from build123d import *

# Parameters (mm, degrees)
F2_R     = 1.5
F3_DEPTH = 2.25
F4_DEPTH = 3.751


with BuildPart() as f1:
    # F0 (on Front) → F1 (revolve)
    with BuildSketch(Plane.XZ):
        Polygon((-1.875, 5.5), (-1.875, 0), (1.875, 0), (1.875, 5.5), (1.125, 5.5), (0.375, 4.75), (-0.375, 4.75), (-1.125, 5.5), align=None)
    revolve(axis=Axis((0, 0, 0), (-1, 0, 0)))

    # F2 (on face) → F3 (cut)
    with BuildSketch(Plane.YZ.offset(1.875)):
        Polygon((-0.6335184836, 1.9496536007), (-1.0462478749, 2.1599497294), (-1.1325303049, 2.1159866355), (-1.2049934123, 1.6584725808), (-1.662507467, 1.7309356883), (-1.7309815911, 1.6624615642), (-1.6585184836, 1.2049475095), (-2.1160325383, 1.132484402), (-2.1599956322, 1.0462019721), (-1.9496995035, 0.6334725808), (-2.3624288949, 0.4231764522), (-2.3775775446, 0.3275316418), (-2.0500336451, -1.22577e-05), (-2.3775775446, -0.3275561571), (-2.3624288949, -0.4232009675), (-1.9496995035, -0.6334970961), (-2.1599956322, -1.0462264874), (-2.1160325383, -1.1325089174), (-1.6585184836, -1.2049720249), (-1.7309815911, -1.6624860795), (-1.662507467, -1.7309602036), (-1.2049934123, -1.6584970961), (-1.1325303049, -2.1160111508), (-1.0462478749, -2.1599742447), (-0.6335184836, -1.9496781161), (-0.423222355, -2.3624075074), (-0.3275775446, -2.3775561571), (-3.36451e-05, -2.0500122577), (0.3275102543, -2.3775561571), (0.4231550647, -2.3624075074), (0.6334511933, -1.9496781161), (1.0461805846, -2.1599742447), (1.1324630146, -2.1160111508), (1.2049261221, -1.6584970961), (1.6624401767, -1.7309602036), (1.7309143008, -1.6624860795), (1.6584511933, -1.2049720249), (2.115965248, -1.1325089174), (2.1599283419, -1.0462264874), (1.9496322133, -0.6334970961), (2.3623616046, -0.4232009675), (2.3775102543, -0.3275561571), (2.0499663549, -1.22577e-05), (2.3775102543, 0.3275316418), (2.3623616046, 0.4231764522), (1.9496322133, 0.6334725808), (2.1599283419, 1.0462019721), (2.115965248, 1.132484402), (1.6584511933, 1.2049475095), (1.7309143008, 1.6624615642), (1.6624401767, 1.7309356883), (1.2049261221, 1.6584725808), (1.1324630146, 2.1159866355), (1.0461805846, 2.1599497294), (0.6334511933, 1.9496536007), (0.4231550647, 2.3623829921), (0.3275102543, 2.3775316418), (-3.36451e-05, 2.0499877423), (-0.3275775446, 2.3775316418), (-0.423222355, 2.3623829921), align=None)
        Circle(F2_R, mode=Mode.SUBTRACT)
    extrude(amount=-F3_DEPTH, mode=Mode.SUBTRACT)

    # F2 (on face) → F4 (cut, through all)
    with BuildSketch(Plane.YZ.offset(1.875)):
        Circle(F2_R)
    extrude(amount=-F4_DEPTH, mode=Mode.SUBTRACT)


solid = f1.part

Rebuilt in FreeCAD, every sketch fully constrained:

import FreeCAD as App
import Part
import Sketcher
Q = App.Units.Quantity

doc = App.newDocument("Part")
params = doc.addObject("Spreadsheet::Sheet", "Params")
for row, (alias, value) in enumerate([
    ("sketch1_height", "5.5 mm"),
    ("sketch1_width", "3.75 mm"),
    ("revolution_angle", "360 deg"),
    ("sketch2_diameter", "3 mm"),
    ("pocket1_length", "2.25 mm"),
    ("sketch3_diameter", "3 mm"),
], start=1):
    params.set(f"A{row}", alias)
    params.set(f"B{row}", "=" + value)
    params.setAlias(f"B{row}", alias)

body = doc.addObject("PartDesign::Body", "Body")

sketch1 = body.newObject("Sketcher::SketchObject", "Sketch")
sketch1.AttachmentSupport = (doc.getObject("XZ_Plane"), [""])
sketch1.MapMode = "FlatFace"
sketch1.addGeometry([
    Part.LineSegment(App.Vector(-1.9, 5.5, 0), App.Vector(-1.9, 0, 0)),
    Part.LineSegment(App.Vector(-1.9, 0, 0), App.Vector(1.9, 0, 0)),
    Part.LineSegment(App.Vector(1.9, 0, 0), App.Vector(1.9, 5.5, 0)),
    Part.LineSegment(App.Vector(1.9, 5.5, 0), App.Vector(1.1, 5.5, 0)),
    Part.LineSegment(App.Vector(1.1, 5.5, 0), App.Vector(0.4, 4.8, 0)),
    Part.LineSegment(App.Vector(0.4, 4.8, 0), App.Vector(-0.4, 4.8, 0)),
    Part.LineSegment(App.Vector(-0.4, 4.8, 0), App.Vector(-1.1, 5.5, 0)),
    Part.LineSegment(App.Vector(-1.1, 5.5, 0), App.Vector(-1.9, 5.5, 0)),
], False)
sketch1.addConstraint([
    Sketcher.Constraint("Coincident", 0, 2, 1, 1),
    Sketcher.Constraint("Coincident", 1, 2, 2, 1),
    Sketcher.Constraint("Coincident", 2, 2, 3, 1),
    Sketcher.Constraint("Coincident", 3, 2, 4, 1),
    Sketcher.Constraint("Coincident", 4, 2, 5, 1),
    Sketcher.Constraint("Coincident", 5, 2, 6, 1),
    Sketcher.Constraint("Coincident", 6, 2, 7, 1),
    Sketcher.Constraint("Coincident", 7, 2, 0, 1),
    Sketcher.Constraint("Vertical", 0),
    Sketcher.Constraint("Horizontal", 1),
    Sketcher.Constraint("Vertical", 2),
    Sketcher.Constraint("Horizontal", 3),
    Sketcher.Constraint("Horizontal", 5),
    Sketcher.Constraint("Horizontal", 7),
    Sketcher.Constraint("Symmetric", 0, 2, 1, 2, -1, 1),
    Sketcher.Constraint("Symmetric", 3, 2, 6, 2, -2),
    Sketcher.Constraint("Perpendicular", 4, 6),
    Sketcher.Constraint("Equal", 3, 5),
    Sketcher.Constraint("Equal", 4, 6),
    Sketcher.Constraint("DistanceY", 0, 2, 0, 1, 5.5),
    Sketcher.Constraint("DistanceX", 0, 2, 3, 2, 3.0),
    Sketcher.Constraint("DistanceX", 1, 1, 1, 2, 3.75),
])
sketch1.setExpression("Constraints[19]", "Params.sketch1_height")
sketch1.setExpression("Constraints[21]", "Params.sketch1_width")
revolution = body.newObject("PartDesign::Revolution", "Revolution")
revolution.Profile = sketch1
revolution.ReferenceAxis = (sketch1, ["H_Axis"])
revolution.setExpression("Angle", "Params.revolution_angle")

sketch2 = body.newObject("Sketcher::SketchObject", "Sketch001")
sketch2.AttachmentSupport = (doc.getObject("YZ_Plane"), [""])
sketch2.MapMode = "FlatFace"
sketch2.AttachmentOffset = App.Placement(App.Vector(0, 0, 1.875), App.Rotation())
sketch2.addGeometry([
    Part.LineSegment(App.Vector(-0.63, 1.95, 0), App.Vector(-1.05, 2.16, 0)),
    Part.LineSegment(App.Vector(-1.05, 2.16, 0), App.Vector(-1.13, 2.12, 0)),
    Part.LineSegment(App.Vector(-1.13, 2.12, 0), App.Vector(-1.2, 1.66, 0)),
    Part.LineSegment(App.Vector(-1.2, 1.66, 0), App.Vector(-1.66, 1.73, 0)),
    Part.LineSegment(App.Vector(-1.66, 1.73, 0), App.Vector(-1.73, 1.66, 0)),
    Part.LineSegment(App.Vector(-1.73, 1.66, 0), App.Vector(-1.66, 1.2, 0)),
    Part.LineSegment(App.Vector(-1.66, 1.2, 0), App.Vector(-2.12, 1.13, 0)),
    Part.LineSegment(App.Vector(-2.12, 1.13, 0), App.Vector(-2.16, 1.05, 0)),
    Part.LineSegment(App.Vector(-2.16, 1.05, 0), App.Vector(-1.95, 0.63, 0)),
    Part.LineSegment(App.Vector(-1.95, 0.63, 0), App.Vector(-2.36, 0.42, 0)),
    Part.LineSegment(App.Vector(-2.36, 0.42, 0), App.Vector(-2.38, 0.33, 0)),
    Part.LineSegment(App.Vector(-2.38, 0.33, 0), App.Vector(-2.05, 0, 0)),
    Part.LineSegment(App.Vector(-2.05, 0, 0), App.Vector(-2.38, -0.33, 0)),
    Part.LineSegment(App.Vector(-2.38, -0.33, 0), App.Vector(-2.36, -0.42, 0)),
    Part.LineSegment(App.Vector(-2.36, -0.42, 0), App.Vector(-1.95, -0.63, 0)),
    Part.LineSegment(App.Vector(-1.95, -0.63, 0), App.Vector(-2.16, -1.05, 0)),
    Part.LineSegment(App.Vector(-2.16, -1.05, 0), App.Vector(-2.12, -1.13, 0)),
    Part.LineSegment(App.Vector(-2.12, -1.13, 0), App.Vector(-1.66, -1.2, 0)),
    Part.LineSegment(App.Vector(-1.66, -1.2, 0), App.Vector(-1.73, -1.66, 0)),
    Part.LineSegment(App.Vector(-1.73, -1.66, 0), App.Vector(-1.66, -1.73, 0)),
    Part.LineSegment(App.Vector(-1.66, -1.73, 0), App.Vector(-1.2, -1.66, 0)),
    Part.LineSegment(App.Vector(-1.2, -1.66, 0), App.Vector(-1.13, -2.12, 0)),
    Part.LineSegment(App.Vector(-1.13, -2.12, 0), App.Vector(-1.05, -2.16, 0)),
    Part.LineSegment(App.Vector(-1.05, -2.16, 0), App.Vector(-0.63, -1.95, 0)),
    Part.LineSegment(App.Vector(-0.63, -1.95, 0), App.Vector(-0.42, -2.36, 0)),
    Part.LineSegment(App.Vector(-0.42, -2.36, 0), App.Vector(-0.33, -2.38, 0)),
    Part.LineSegment(App.Vector(-0.33, -2.38, 0), App.Vector(0, -2.05, 0)),
    Part.LineSegment(App.Vector(0, -2.05, 0), App.Vector(0.33, -2.38, 0)),
    Part.LineSegment(App.Vector(0.33, -2.38, 0), App.Vector(0.42, -2.36, 0)),
    Part.LineSegment(App.Vector(0.42, -2.36, 0), App.Vector(0.63, -1.95, 0)),
    Part.LineSegment(App.Vector(0.63, -1.95, 0), App.Vector(1.05, -2.16, 0)),
    Part.LineSegment(App.Vector(1.05, -2.16, 0), App.Vector(1.13, -2.12, 0)),
    Part.LineSegment(App.Vector(1.13, -2.12, 0), App.Vector(1.2, -1.66, 0)),
    Part.LineSegment(App.Vector(1.2, -1.66, 0), App.Vector(1.66, -1.73, 0)),
    Part.LineSegment(App.Vector(1.66, -1.73, 0), App.Vector(1.73, -1.66, 0)),
    Part.LineSegment(App.Vector(1.73, -1.66, 0), App.Vector(1.66, -1.2, 0)),
    Part.LineSegment(App.Vector(1.66, -1.2, 0), App.Vector(2.12, -1.13, 0)),
    Part.LineSegment(App.Vector(2.12, -1.13, 0), App.Vector(2.16, -1.05, 0)),
    Part.LineSegment(App.Vector(2.16, -1.05, 0), App.Vector(1.95, -0.63, 0)),
    Part.LineSegment(App.Vector(1.95, -0.63, 0), App.Vector(2.36, -0.42, 0)),
    Part.LineSegment(App.Vector(2.36, -0.42, 0), App.Vector(2.38, -0.33, 0)),
    Part.LineSegment(App.Vector(2.38, -0.33, 0), App.Vector(2.05, 0, 0)),
    Part.LineSegment(App.Vector(2.05, 0, 0), App.Vector(2.38, 0.33, 0)),
    Part.LineSegment(App.Vector(2.38, 0.33, 0), App.Vector(2.36, 0.42, 0)),
    Part.LineSegment(App.Vector(2.36, 0.42, 0), App.Vector(1.95, 0.63, 0)),
    Part.LineSegment(App.Vector(1.95, 0.63, 0), App.Vector(2.16, 1.05, 0)),
    Part.LineSegment(App.Vector(2.16, 1.05, 0), App.Vector(2.12, 1.13, 0)),
    Part.LineSegment(App.Vector(2.12, 1.13, 0), App.Vector(1.66, 1.2, 0)),
    Part.LineSegment(App.Vector(1.66, 1.2, 0), App.Vector(1.73, 1.66, 0)),
    Part.LineSegment(App.Vector(1.73, 1.66, 0), App.Vector(1.66, 1.73, 0)),
    Part.LineSegment(App.Vector(1.66, 1.73, 0), App.Vector(1.2, 1.66, 0)),
    Part.LineSegment(App.Vector(1.2, 1.66, 0), App.Vector(1.13, 2.12, 0)),
    Part.LineSegment(App.Vector(1.13, 2.12, 0), App.Vector(1.05, 2.16, 0)),
    Part.LineSegment(App.Vector(1.05, 2.16, 0), App.Vector(0.63, 1.95, 0)),
    Part.LineSegment(App.Vector(0.63, 1.95, 0), App.Vector(0.42, 2.36, 0)),
    Part.LineSegment(App.Vector(0.42, 2.36, 0), App.Vector(0.33, 2.38, 0)),
    Part.LineSegment(App.Vector(0.33, 2.38, 0), App.Vector(0, 2.05, 0)),
    Part.LineSegment(App.Vector(0, 2.05, 0), App.Vector(-0.33, 2.38, 0)),
    Part.LineSegment(App.Vector(-0.33, 2.38, 0), App.Vector(-0.42, 2.36, 0)),
    Part.LineSegment(App.Vector(-0.42, 2.36, 0), App.Vector(-0.63, 1.95, 0)),
    Part.Circle(App.Vector(0, 0, 0), App.Vector(0, 0, 1), 1.5),
], False)
sketch2.addConstraint([
    Sketcher.Constraint("Coincident", 0, 2, 1, 1),
    Sketcher.Constraint("Coincident", 1, 2, 2, 1),
    Sketcher.Constraint("Coincident", 2, 2, 3, 1),
    Sketcher.Constraint("Coincident", 3, 2, 4, 1),
    Sketcher.Constraint("Coincident", 4, 2, 5, 1),
    Sketcher.Constraint("Coincident", 5, 2, 6, 1),
    Sketcher.Constraint("Coincident", 6, 2, 7, 1),
    Sketcher.Constraint("Coincident", 7, 2, 8, 1),
    Sketcher.Constraint("Coincident", 8, 2, 9, 1),
    Sketcher.Constraint("Coincident", 9, 2, 10, 1),
    Sketcher.Constraint("Coincident", 10, 2, 11, 1),
    Sketcher.Constraint("Coincident", 11, 2, 12, 1),
    Sketcher.Constraint("Coincident", 12, 2, 13, 1),
    Sketcher.Constraint("Coincident", 13, 2, 14, 1),
    Sketcher.Constraint("Coincident", 14, 2, 15, 1),
    Sketcher.Constraint("Coincident", 15, 2, 16, 1),
    Sketcher.Constraint("Coincident", 16, 2, 17, 1),
    Sketcher.Constraint("Coincident", 17, 2, 18, 1),
    Sketcher.Constraint("Coincident", 18, 2, 19, 1),
    Sketcher.Constraint("Coincident", 19, 2, 20, 1),
    Sketcher.Constraint("Coincident", 20, 2, 21, 1),
    Sketcher.Constraint("Coincident", 21, 2, 22, 1),
    Sketcher.Constraint("Coincident", 22, 2, 23, 1),
    Sketcher.Constraint("Coincident", 23, 2, 24, 1),
    Sketcher.Constraint("Coincident", 24, 2, 25, 1),
    Sketcher.Constraint("Coincident", 25, 2, 26, 1),
    Sketcher.Constraint("Coincident", 26, 2, 27, 1),
    Sketcher.Constraint("Coincident", 27, 2, 28, 1),
    Sketcher.Constraint("Coincident", 28, 2, 29, 1),
    Sketcher.Constraint("Coincident", 29, 2, 30, 1),
    Sketcher.Constraint("Coincident", 30, 2, 31, 1),
    Sketcher.Constraint("Coincident", 31, 2, 32, 1),
    Sketcher.Constraint("Coincident", 32, 2, 33, 1),
    Sketcher.Constraint("Coincident", 33, 2, 34, 1),
    Sketcher.Constraint("Coincident", 34, 2, 35, 1),
    Sketcher.Constraint("Coincident", 35, 2, 36, 1),
    Sketcher.Constraint("Coincident", 36, 2, 37, 1),
    Sketcher.Constraint("Coincident", 37, 2, 38, 1),
    Sketcher.Constraint("Coincident", 38, 2, 39, 1),
    Sketcher.Constraint("Coincident", 39, 2, 40, 1),
    Sketcher.Constraint("Coincident", 40, 2, 41, 1),
    Sketcher.Constraint("Coincident", 41, 2, 42, 1),
    Sketcher.Constraint("Coincident", 42, 2, 43, 1),
    Sketcher.Constraint("Coincident", 43, 2, 44, 1),
    Sketcher.Constraint("Coincident", 44, 2, 45, 1),
    Sketcher.Constraint("Coincident", 45, 2, 46, 1),
    Sketcher.Constraint("Coincident", 46, 2, 47, 1),
    Sketcher.Constraint("Coincident", 47, 2, 48, 1),
    Sketcher.Constraint("Coincident", 48, 2, 49, 1),
    Sketcher.Constraint("Coincident", 49, 2, 50, 1),
    Sketcher.Constraint("Coincident", 50, 2, 51, 1),
    Sketcher.Constraint("Coincident", 51, 2, 52, 1),
    Sketcher.Constraint("Coincident", 52, 2, 53, 1),
    Sketcher.Constraint("Coincident", 53, 2, 54, 1),
    Sketcher.Constraint("Coincident", 54, 2, 55, 1),
    Sketcher.Constraint("Coincident", 55, 2, 56, 1),
    Sketcher.Constraint("Coincident", 56, 2, 57, 1),
    Sketcher.Constraint("Coincident", 57, 2, 58, 1),
    Sketcher.Constraint("Coincident", 58, 2, 59, 1),
    Sketcher.Constraint("Coincident", 59, 2, 0, 1),
    Sketcher.Constraint("Coincident", 60, 3, -1, 1),
    Sketcher.Constraint("Perpendicular", 2, 3),
    Sketcher.Constraint("Perpendicular", 5, 6),
    Sketcher.Constraint("Perpendicular", 0, 7),
    Sketcher.Constraint("Perpendicular", 1, 8),
    Sketcher.Constraint("Perpendicular", 8, 9),
    Sketcher.Constraint("Perpendicular", 3, 10),
    Sketcher.Constraint("Perpendicular", 4, 11),
    Sketcher.Constraint("Perpendicular", 11, 12),
    Sketcher.Constraint("Perpendicular", 6, 13),
    Sketcher.Constraint("Perpendicular", 7, 14),
    Sketcher.Constraint("Perpendicular", 14, 15),
    Sketcher.Constraint("Perpendicular", 9, 16),
    Sketcher.Constraint("Perpendicular", 10, 17),
    Sketcher.Constraint("Perpendicular", 17, 18),
    Sketcher.Constraint("Perpendicular", 12, 19),
    Sketcher.Constraint("Perpendicular", 13, 20),
    Sketcher.Constraint("Perpendicular", 20, 21),
    Sketcher.Constraint("Perpendicular", 15, 22),
    Sketcher.Constraint("Perpendicular", 16, 23),
    Sketcher.Constraint("Perpendicular", 23, 24),
    Sketcher.Constraint("Perpendicular", 18, 25),
    Sketcher.Constraint("Perpendicular", 19, 26),
    Sketcher.Constraint("Perpendicular", 26, 27),
    Sketcher.Constraint("Perpendicular", 21, 28),
    Sketcher.Constraint("Perpendicular", 22, 29),
    Sketcher.Constraint("Perpendicular", 29, 30),
    Sketcher.Constraint("Perpendicular", 24, 31),
    Sketcher.Constraint("Perpendicular", 25, 32),
    Sketcher.Constraint("Perpendicular", 32, 33),
    Sketcher.Constraint("Perpendicular", 27, 34),
    Sketcher.Constraint("Perpendicular", 28, 35),
    Sketcher.Constraint("Perpendicular", 35, 36),
    Sketcher.Constraint("Perpendicular", 30, 37),
    Sketcher.Constraint("Perpendicular", 31, 38),
    Sketcher.Constraint("Perpendicular", 38, 39),
    Sketcher.Constraint("Perpendicular", 33, 40),
    Sketcher.Constraint("Perpendicular", 34, 41),
    Sketcher.Constraint("Perpendicular", 41, 42),
    Sketcher.Constraint("Perpendicular", 36, 43),
    Sketcher.Constraint("Perpendicular", 37, 44),
    Sketcher.Constraint("Perpendicular", 44, 45),
    Sketcher.Constraint("Perpendicular", 39, 46),
    Sketcher.Constraint("Perpendicular", 40, 47),
    Sketcher.Constraint("Perpendicular", 47, 48),
    Sketcher.Constraint("Perpendicular", 42, 49),
    Sketcher.Constraint("Perpendicular", 43, 50),
    Sketcher.Constraint("Perpendicular", 50, 51),
    Sketcher.Constraint("Perpendicular", 45, 52),
    Sketcher.Constraint("Perpendicular", 46, 53),
    Sketcher.Constraint("Perpendicular", 53, 54),
    Sketcher.Constraint("Perpendicular", 48, 55),
    Sketcher.Constraint("Perpendicular", 49, 56),
    Sketcher.Constraint("Perpendicular", 56, 57),
    Sketcher.Constraint("Perpendicular", 51, 58),
    Sketcher.Constraint("Perpendicular", 52, 59),
    Sketcher.Constraint("Horizontal", 25, 2, 27, 2),
    Sketcher.Constraint("Horizontal", 24, 2, 28, 2),
    Sketcher.Constraint("Horizontal", 23, 2, 29, 2),
    Sketcher.Constraint("Horizontal", 22, 2, 30, 2),
    Sketcher.Constraint("Horizontal", 21, 2, 31, 2),
    Sketcher.Constraint("Horizontal", 20, 2, 32, 2),
    Sketcher.Constraint("Horizontal", 19, 2, 33, 2),
    Sketcher.Constraint("Horizontal", 18, 2, 34, 2),
    Sketcher.Constraint("Horizontal", 17, 2, 35, 2),
    Sketcher.Constraint("Horizontal", 16, 2, 36, 2),
    Sketcher.Constraint("Horizontal", 15, 2, 37, 2),
    Sketcher.Constraint("Horizontal", 14, 2, 38, 2),
    Sketcher.Constraint("Horizontal", 13, 2, 39, 2),
    Sketcher.Constraint("Horizontal", 12, 2, 40, 2),
    Sketcher.Constraint("Horizontal", 11, 2, 41, 2),
    Sketcher.Constraint("Horizontal", 10, 2, 42, 2),
    Sketcher.Constraint("Horizontal", 9, 2, 43, 2),
    Sketcher.Constraint("Horizontal", 8, 2, 44, 2),
    Sketcher.Constraint("Horizontal", 7, 2, 45, 2),
    Sketcher.Constraint("Horizontal", 6, 2, 46, 2),
    Sketcher.Constraint("Horizontal", 5, 2, 47, 2),
    Sketcher.Constraint("Horizontal", 4, 2, 48, 2),
    Sketcher.Constraint("Horizontal", 3, 2, 49, 2),
    Sketcher.Constraint("Horizontal", 2, 2, 50, 2),
    Sketcher.Constraint("Horizontal", 1, 2, 51, 2),
    Sketcher.Constraint("Horizontal", 0, 2, 52, 2),
    Sketcher.Constraint("Horizontal", 55, 2, 57, 2),
    Sketcher.Constraint("Horizontal", 54, 2, 58, 2),
    Sketcher.Constraint("Horizontal", 53, 2, 59, 2),
    Sketcher.Constraint("Vertical", 10, 2, 12, 2),
    Sketcher.Constraint("Vertical", 9, 2, 13, 2),
    Sketcher.Constraint("Vertical", 8, 2, 14, 2),
    Sketcher.Constraint("Vertical", 7, 2, 15, 2),
    Sketcher.Constraint("Vertical", 6, 2, 16, 2),
    Sketcher.Constraint("Vertical", 5, 2, 17, 2),
    Sketcher.Constraint("Vertical", 4, 2, 18, 2),
    Sketcher.Constraint("Vertical", 3, 2, 19, 2),
    Sketcher.Constraint("Vertical", 2, 2, 20, 2),
    Sketcher.Constraint("Vertical", 1, 2, 21, 2),
    Sketcher.Constraint("Vertical", 0, 2, 22, 2),
    Sketcher.Constraint("Vertical", 40, 2, 42, 2),
    Sketcher.Constraint("Vertical", 39, 2, 43, 2),
    Sketcher.Constraint("Vertical", 38, 2, 44, 2),
    Sketcher.Constraint("Vertical", 29, 2, 53, 2),
    Sketcher.Constraint("Vertical", 28, 2, 54, 2),
    Sketcher.Constraint("Vertical", 27, 2, 55, 2),
    Sketcher.Constraint("Equal", 0, 2),
    Sketcher.Constraint("Equal", 2, 3),
    Sketcher.Constraint("Equal", 1, 4),
    Sketcher.Constraint("Equal", 3, 5),
    Sketcher.Constraint("Equal", 5, 6),
    Sketcher.Constraint("Equal", 4, 7),
    Sketcher.Constraint("Equal", 6, 8),
    Sketcher.Constraint("Equal", 8, 9),
    Sketcher.Constraint("Equal", 7, 10),
    Sketcher.Constraint("Equal", 9, 11),
    Sketcher.Constraint("Equal", 23, 24),
    Sketcher.Constraint("Equal", 22, 25),
    Sketcher.Constraint("Equal", 24, 26),
    Sketcher.Constraint("Diameter", 60, 3.0),
    Sketcher.Constraint("Angle", 0, Q("153 deg")),
    Sketcher.Constraint("Angle", 2, Q("-99 deg")),
    Sketcher.Constraint("DistanceY", -1, 1, 7, 2, 1.046202),
    Sketcher.Constraint("DistanceX", 8, 2, -1, 1, 1.9497),
    Sketcher.Constraint("DistanceY", 13, 2, -1, 1, 0.423201),
    Sketcher.Constraint("DistanceY", -1, 1, 0, 2, 2.15995),
])
sketch2.setExpression("Constraints[175]", "Params.sketch2_diameter")
pocket1 = body.newObject("PartDesign::Pocket", "Pocket")
pocket1.Profile = sketch2
pocket1.setExpression("Length", "Params.pocket1_length")

sketch3 = body.newObject("Sketcher::SketchObject", "Sketch002")
sketch3.AttachmentSupport = (doc.getObject("YZ_Plane"), [""])
sketch3.MapMode = "FlatFace"
sketch3.AttachmentOffset = App.Placement(App.Vector(0, 0, 1.875), App.Rotation())
sketch3.addGeometry(Part.Circle(App.Vector(0, 0, 0), App.Vector(0, 0, 1), 1.5), False)
sketch3.addConstraint([
    Sketcher.Constraint("Coincident", 0, 3, -1, 1),
    Sketcher.Constraint("Diameter", 0, 3.0),
])
sketch3.setExpression("Constraints[1]", "Params.sketch3_diameter")
pocket2 = body.newObject("PartDesign::Pocket", "Pocket001")
pocket2.Profile = sketch3
pocket2.Type = "ThroughAll"

doc.recompute()
